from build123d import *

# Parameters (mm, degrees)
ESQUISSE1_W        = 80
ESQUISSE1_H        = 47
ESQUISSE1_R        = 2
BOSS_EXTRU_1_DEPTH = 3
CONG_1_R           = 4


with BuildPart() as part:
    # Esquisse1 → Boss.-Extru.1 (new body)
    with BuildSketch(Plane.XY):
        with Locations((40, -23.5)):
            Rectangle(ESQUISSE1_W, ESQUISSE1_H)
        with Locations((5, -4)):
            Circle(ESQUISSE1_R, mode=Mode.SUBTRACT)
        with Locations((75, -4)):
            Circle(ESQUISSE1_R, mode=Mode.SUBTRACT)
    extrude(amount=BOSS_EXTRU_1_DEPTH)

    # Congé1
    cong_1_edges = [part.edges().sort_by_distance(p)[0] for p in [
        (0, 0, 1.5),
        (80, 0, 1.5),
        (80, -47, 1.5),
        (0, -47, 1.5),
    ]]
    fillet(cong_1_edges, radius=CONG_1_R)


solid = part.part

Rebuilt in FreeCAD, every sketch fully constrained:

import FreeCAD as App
import Part
import Sketcher
Q = App.Units.Quantity


def edges_at(feature, points):
    """Names of the edges that pass closest to the given points."""
    edges = feature.Shape.Edges
    near = lambda p: min(range(len(edges)), key=lambda i: edges[i].distToShape(Part.Vertex(*p))[0])
    return sorted({f"Edge{near(p) + 1}" for p in points})


def add_polygon(sketch, points):
    """Adds a closed chain of lines whose ends are joined by coincident constraints."""
    first, n = sketch.GeometryCount, len(points)
    for a, b in zip(points, points[1:] + points[:1]):
        sketch.addGeometry(Part.LineSegment(App.Vector(*a, 0), App.Vector(*b, 0)), False)
    for i in range(n):
        sketch.addConstraint(Sketcher.Constraint("Coincident", first + i, 2, first + (i + 1) % n, 1))

doc = App.newDocument("Part")
body = doc.addObject("PartDesign::Body", "Body")

# Sketch on XY plane
sketch1 = body.newObject("Sketcher::SketchObject", "Sketch")
sketch1.AttachmentSupport = (doc.getObject("XY_Plane"), [""])
sketch1.MapMode = "FlatFace"
add_polygon(sketch1, [(0, 0), (0, -47), (80, -47), (80, 0)])  # lines 0-3
sketch1.addGeometry(Part.Circle(App.Vector(5, -4, 0), App.Vector(0, 0, 1), 2), False)  # 4
sketch1.addGeometry(Part.Circle(App.Vector(75, -4, 0), App.Vector(0, 0, 1), 2), False)  # 5
sketch1.addConstraint(Sketcher.Constraint("Vertical", 0))
sketch1.addConstraint(Sketcher.Constraint("Horizontal", 1))
sketch1.addConstraint(Sketcher.Constraint("Vertical", 2))
sketch1.addConstraint(Sketcher.Constraint("Horizontal", 3))
sketch1.addConstraint(Sketcher.Constraint("Coincident", 3, 2, -1, 1))
sketch1.addConstraint(Sketcher.Constraint("Equal", 4, 5))
sketch1.addConstraint(Sketcher.Constraint("Horizontal", 4, 3, 5, 3))
sketch1.addConstraint(Sketcher.Constraint("Diameter", 4, Q("4 mm")))
sketch1.addConstraint(Sketcher.Constraint("DistanceX", 1, 1, 1, 2, Q("80 mm")))
sketch1.addConstraint(Sketcher.Constraint("DistanceY", 0, 2, 0, 1, Q("47 mm")))
sketch1.addConstraint(Sketcher.Constraint("DistanceX", -1, 1, 4, 3, Q("5 mm")))
sketch1.addConstraint(Sketcher.Constraint("DistanceY", 4, 3, -1, 1, Q("4 mm")))
sketch1.addConstraint(Sketcher.Constraint("DistanceX", -1, 1, 5, 3, Q("75 mm")))
pad1 = body.newObject("PartDesign::Pad", "Pad")
pad1.Profile = sketch1
pad1.Length = 3
doc.recompute()

fillet = body.newObject("PartDesign::Fillet", "Fillet")
fillet.Base = (pad1, edges_at(pad1, [
    (0, 0, 1.5),
    (80, 0, 1.5),
    (80, -47, 1.5),
    (0, -47, 1.5),
]))
fillet.Radius = 4

doc.recompute()
